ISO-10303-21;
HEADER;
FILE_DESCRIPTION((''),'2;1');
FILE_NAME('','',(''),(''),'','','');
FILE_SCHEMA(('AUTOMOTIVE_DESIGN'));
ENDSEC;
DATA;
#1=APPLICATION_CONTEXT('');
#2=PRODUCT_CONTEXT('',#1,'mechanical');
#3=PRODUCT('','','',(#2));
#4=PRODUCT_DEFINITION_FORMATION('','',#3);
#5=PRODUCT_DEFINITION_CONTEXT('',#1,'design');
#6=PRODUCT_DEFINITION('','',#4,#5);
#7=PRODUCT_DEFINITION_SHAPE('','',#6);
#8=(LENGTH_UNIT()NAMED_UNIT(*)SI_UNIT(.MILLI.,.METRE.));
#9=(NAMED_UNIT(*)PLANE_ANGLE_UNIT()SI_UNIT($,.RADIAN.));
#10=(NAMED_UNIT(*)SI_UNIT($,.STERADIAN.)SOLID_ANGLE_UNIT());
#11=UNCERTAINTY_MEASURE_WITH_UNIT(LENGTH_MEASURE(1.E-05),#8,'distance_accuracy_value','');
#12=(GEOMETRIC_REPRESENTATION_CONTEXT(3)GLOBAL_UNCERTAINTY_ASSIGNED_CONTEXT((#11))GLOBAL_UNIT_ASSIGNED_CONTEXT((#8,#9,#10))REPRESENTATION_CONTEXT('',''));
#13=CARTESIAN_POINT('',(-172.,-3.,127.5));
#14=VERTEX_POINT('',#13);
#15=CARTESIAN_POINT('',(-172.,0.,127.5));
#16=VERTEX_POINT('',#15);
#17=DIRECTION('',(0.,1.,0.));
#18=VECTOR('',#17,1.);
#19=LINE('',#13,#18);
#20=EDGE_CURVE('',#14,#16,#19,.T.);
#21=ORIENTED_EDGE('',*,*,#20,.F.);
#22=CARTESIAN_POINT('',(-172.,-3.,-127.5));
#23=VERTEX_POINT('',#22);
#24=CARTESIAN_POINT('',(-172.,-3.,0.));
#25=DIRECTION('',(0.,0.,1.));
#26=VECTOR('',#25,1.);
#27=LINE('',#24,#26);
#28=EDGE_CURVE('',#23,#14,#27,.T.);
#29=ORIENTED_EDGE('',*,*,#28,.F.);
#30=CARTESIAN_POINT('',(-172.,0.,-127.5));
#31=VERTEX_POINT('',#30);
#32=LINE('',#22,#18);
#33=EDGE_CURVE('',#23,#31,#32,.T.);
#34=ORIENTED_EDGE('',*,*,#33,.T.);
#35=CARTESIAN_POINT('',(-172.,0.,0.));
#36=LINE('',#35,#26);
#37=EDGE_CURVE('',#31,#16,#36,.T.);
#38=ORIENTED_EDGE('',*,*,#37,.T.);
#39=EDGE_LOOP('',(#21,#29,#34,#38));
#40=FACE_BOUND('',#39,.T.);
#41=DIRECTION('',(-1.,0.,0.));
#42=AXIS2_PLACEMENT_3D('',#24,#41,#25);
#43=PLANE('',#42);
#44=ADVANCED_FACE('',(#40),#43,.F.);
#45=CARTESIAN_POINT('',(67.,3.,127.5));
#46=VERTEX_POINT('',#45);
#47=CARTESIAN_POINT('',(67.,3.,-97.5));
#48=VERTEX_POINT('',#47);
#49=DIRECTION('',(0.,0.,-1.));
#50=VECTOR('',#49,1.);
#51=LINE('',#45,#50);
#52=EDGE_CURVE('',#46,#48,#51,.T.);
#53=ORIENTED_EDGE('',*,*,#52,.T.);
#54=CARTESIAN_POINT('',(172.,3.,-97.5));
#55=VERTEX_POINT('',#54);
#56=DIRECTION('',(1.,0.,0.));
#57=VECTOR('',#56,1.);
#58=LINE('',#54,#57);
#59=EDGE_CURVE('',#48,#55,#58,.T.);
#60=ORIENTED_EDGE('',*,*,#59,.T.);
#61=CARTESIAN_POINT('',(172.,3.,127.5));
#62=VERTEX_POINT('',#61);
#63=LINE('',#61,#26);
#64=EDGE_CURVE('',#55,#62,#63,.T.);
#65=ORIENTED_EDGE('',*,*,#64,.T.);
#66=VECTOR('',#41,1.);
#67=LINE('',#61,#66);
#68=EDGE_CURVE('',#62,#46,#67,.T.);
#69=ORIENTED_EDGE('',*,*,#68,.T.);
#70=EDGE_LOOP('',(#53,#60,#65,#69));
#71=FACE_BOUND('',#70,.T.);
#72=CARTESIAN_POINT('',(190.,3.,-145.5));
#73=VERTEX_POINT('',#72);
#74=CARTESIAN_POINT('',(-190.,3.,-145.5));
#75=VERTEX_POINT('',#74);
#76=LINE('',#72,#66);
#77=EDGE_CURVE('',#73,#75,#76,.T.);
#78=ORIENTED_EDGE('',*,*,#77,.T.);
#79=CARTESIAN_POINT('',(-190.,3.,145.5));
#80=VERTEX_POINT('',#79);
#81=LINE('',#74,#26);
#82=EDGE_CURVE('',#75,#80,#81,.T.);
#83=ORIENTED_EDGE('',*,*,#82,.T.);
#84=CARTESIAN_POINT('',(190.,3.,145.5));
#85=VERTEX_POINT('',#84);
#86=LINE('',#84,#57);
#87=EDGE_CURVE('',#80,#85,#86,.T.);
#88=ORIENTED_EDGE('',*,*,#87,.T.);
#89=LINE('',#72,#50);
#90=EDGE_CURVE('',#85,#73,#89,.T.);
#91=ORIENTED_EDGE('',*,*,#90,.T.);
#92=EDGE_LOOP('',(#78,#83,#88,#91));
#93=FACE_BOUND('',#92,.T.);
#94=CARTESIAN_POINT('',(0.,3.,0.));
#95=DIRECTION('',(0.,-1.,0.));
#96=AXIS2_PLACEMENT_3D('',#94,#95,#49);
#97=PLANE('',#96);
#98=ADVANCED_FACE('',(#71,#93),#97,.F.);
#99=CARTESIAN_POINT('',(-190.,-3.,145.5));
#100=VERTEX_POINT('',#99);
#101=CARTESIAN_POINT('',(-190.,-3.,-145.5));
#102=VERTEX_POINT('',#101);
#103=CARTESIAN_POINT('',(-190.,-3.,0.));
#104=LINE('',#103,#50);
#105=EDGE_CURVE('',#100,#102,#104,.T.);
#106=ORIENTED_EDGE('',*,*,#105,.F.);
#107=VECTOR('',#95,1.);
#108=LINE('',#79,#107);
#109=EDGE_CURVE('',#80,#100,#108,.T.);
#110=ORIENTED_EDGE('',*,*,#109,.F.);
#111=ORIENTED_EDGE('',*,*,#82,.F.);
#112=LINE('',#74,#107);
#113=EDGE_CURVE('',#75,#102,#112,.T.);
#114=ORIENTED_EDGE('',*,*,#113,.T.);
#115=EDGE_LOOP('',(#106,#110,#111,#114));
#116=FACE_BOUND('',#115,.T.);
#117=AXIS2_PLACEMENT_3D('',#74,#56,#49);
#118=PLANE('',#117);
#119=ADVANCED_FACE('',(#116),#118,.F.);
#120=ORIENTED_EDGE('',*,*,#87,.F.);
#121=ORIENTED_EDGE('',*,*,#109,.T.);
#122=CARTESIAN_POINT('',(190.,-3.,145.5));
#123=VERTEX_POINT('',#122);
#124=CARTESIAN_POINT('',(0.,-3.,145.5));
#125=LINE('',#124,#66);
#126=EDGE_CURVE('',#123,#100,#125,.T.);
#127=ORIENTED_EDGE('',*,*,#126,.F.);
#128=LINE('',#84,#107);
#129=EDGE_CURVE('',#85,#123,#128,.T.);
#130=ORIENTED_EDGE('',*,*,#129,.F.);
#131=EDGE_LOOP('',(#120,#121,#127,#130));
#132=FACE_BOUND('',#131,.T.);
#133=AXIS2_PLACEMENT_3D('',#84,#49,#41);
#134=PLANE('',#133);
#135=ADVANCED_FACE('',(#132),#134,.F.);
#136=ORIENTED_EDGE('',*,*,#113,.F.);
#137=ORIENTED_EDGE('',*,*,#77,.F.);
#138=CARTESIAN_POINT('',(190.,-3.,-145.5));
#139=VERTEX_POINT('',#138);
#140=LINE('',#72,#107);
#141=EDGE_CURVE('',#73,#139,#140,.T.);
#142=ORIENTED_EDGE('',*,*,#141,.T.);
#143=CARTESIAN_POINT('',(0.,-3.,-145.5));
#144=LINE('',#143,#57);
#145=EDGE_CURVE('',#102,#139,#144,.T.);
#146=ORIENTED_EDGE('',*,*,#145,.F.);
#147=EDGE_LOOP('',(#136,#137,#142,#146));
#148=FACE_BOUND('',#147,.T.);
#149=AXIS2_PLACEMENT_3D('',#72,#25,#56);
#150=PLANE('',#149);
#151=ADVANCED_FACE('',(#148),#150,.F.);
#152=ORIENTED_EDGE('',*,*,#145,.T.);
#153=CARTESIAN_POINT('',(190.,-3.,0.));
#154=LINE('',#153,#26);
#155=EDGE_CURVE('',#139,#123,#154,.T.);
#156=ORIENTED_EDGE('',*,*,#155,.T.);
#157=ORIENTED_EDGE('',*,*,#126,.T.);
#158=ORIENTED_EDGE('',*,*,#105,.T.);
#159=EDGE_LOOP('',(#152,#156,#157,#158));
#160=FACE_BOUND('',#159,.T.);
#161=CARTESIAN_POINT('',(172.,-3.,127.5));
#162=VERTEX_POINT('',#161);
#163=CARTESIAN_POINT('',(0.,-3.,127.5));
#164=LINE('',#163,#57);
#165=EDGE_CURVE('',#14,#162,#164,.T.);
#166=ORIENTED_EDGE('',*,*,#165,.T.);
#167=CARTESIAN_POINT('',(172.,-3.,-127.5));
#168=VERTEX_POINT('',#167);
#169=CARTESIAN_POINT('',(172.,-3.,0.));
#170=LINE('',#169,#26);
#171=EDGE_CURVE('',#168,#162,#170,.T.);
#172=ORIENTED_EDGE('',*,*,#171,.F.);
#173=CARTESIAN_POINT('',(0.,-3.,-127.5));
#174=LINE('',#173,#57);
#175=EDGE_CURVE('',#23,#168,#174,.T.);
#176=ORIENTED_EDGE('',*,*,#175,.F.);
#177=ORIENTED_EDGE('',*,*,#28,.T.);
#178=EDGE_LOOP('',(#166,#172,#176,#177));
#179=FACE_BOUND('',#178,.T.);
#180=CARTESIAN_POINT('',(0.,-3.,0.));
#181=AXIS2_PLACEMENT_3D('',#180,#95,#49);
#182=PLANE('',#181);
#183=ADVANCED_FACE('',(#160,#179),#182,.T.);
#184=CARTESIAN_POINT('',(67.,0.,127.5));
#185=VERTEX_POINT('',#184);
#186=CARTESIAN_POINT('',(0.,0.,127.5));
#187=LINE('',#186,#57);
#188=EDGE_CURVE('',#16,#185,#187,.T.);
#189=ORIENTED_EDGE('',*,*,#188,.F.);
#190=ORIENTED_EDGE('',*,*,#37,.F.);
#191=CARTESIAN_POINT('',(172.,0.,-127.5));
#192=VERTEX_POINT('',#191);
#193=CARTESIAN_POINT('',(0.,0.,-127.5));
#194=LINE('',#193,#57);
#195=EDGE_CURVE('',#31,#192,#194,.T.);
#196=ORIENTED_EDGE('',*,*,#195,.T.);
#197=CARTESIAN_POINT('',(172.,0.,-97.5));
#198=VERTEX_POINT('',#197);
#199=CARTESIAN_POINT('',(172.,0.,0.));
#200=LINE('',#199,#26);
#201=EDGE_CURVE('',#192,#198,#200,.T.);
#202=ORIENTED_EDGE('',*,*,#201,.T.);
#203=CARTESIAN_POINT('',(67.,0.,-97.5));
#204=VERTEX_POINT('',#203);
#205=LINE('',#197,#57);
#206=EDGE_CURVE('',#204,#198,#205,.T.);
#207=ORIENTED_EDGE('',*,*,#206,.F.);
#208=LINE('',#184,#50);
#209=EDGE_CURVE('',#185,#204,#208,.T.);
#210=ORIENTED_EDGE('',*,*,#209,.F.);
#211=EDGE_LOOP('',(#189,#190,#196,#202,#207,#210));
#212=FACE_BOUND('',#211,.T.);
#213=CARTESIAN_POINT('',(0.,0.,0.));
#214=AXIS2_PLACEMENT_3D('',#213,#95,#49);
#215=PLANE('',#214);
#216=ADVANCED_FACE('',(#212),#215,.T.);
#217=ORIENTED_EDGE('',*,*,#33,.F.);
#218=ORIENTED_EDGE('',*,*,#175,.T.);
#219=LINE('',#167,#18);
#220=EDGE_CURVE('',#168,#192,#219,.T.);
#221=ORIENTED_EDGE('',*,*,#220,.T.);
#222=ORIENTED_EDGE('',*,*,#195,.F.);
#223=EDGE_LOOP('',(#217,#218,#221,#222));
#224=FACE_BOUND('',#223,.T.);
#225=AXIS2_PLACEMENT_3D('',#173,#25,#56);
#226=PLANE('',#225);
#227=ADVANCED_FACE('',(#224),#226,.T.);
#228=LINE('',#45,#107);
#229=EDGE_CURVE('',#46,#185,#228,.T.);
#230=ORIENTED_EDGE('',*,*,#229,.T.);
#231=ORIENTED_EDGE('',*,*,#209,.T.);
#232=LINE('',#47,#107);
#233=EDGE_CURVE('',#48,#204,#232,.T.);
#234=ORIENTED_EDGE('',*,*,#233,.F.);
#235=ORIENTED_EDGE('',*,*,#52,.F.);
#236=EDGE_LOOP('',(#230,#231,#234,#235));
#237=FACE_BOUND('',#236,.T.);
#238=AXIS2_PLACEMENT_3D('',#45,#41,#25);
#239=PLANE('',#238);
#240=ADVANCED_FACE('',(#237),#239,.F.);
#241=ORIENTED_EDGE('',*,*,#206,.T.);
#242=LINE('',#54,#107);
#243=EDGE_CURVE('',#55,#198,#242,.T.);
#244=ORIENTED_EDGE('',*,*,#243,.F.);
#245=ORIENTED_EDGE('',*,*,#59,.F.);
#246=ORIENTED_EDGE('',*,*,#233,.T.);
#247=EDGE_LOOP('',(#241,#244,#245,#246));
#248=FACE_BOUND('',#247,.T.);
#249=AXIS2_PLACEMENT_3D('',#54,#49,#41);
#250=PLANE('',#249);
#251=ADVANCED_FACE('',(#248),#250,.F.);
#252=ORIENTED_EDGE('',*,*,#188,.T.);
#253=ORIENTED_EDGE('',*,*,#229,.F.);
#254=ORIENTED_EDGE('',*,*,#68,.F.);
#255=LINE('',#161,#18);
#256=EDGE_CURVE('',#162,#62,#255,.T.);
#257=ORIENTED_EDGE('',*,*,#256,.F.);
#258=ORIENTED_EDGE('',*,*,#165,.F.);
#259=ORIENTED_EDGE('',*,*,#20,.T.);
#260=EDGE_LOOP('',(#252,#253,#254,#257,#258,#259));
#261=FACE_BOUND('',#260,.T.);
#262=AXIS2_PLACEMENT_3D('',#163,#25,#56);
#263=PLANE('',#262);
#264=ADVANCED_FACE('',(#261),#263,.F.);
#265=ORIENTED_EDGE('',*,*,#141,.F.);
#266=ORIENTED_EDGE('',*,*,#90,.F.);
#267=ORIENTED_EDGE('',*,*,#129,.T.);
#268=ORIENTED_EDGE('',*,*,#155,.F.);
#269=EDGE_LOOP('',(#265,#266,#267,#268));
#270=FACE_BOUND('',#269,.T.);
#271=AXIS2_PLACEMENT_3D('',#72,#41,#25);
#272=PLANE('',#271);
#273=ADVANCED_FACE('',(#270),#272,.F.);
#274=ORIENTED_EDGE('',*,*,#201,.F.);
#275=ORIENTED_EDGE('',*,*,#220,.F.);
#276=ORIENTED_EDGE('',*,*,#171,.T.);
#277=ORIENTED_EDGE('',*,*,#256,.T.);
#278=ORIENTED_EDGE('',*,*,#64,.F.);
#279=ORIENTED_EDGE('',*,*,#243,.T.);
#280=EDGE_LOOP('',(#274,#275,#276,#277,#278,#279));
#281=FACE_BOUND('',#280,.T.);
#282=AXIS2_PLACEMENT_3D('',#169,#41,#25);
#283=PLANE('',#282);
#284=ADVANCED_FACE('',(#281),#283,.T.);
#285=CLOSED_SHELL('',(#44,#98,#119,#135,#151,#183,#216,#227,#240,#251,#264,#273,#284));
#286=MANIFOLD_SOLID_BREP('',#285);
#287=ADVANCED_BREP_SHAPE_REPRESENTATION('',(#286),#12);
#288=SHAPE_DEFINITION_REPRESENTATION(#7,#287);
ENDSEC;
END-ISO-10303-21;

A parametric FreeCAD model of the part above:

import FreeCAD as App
import Part
import Sketcher
Q = App.Units.Quantity


def add_polygon(sketch, points):
    """Adds a closed chain of lines whose ends are joined by coincident constraints."""
    first, n = sketch.GeometryCount, len(points)
    for a, b in zip(points, points[1:] + points[:1]):
        sketch.addGeometry(Part.LineSegment(App.Vector(*a, 0), App.Vector(*b, 0)), False)
    for i in range(n):
        sketch.addConstraint(Sketcher.Constraint("Coincident", first + i, 2, first + (i + 1) % n, 1))

doc = App.newDocument("Part")
body = doc.addObject("PartDesign::Body", "Body")

sketch1 = body.newObject("Sketcher::SketchObject", "Sketch")
sketch1.AttachmentSupport = (doc.getObject("XZ_Plane"), [""])
sketch1.MapMode = "FlatFace"
add_polygon(sketch1, [(-190, -146), (-190, 146), (190, 146), (190, -146)])
sketch1.addConstraint([
    Sketcher.Constraint("Vertical", 0),
    Sketcher.Constraint("Horizontal", 1),
    Sketcher.Constraint("Vertical", 2),
    Sketcher.Constraint("Horizontal", 3),
    Sketcher.Constraint("Symmetric", 0, 2, 2, 2, -1, 1),
    Sketcher.Constraint("DistanceX", 1, 1, 1, 2, Q("380 mm")),
    Sketcher.Constraint("DistanceY", 0, 1, 0, 2, Q("291 mm")),
])
pad1 = body.newObject("PartDesign::Pad", "Pad")
pad1.Profile = sketch1
pad1.Length = 3
pad1.Reversed = True

sketch2 = body.newObject("Sketcher::SketchObject", "Sketch001")
sketch2.AttachmentSupport = (doc.getObject("XZ_Plane"), [""])
sketch2.MapMode = "FlatFace"
add_polygon(sketch2, [(-190, 146), (-190, -146), (190, -146), (190, 146)])
add_polygon(sketch2, [(172, -128), (-172, -128), (-172, 128), (172, 128)])
sketch2.addConstraint([
    Sketcher.Constraint("Vertical", 0),
    Sketcher.Constraint("Horizontal", 1),
    Sketcher.Constraint("Vertical", 2),
    Sketcher.Constraint("Horizontal", 3),
    Sketcher.Constraint("Horizontal", 4),
    Sketcher.Constraint("Vertical", 5),
    Sketcher.Constraint("Horizontal", 6),
    Sketcher.Constraint("Vertical", 7),
    Sketcher.Constraint("Symmetric", 0, 2, 2, 2, -1, 1),
    Sketcher.Constraint("Symmetric", 4, 2, 6, 2, -1, 1),
    Sketcher.Constraint("DistanceX", 1, 1, 1, 2, Q("380 mm")),
    Sketcher.Constraint("DistanceX", 4, 2, 4, 1, Q("344 mm")),
    Sketcher.Constraint("DistanceY", 0, 2, 0, 1, Q("291 mm")),
    Sketcher.Constraint("DistanceY", 5, 1, 5, 2, Q("255 mm")),
])
pad2 = body.newObject("PartDesign::Pad", "Pad001")
pad2.Profile = sketch2
pad2.Length = 3

sketch3 = body.newObject("Sketcher::SketchObject", "Sketch002")
sketch3.AttachmentSupport = (doc.getObject("XZ_Plane"), [""])
sketch3.MapMode = "FlatFace"
add_polygon(sketch3, [(67, 128), (67, -98), (172, -98), (172, 128)])
sketch3.addConstraint([
    Sketcher.Constraint("Vertical", 0),
    Sketcher.Constraint("Horizontal", 1),
    Sketcher.Constraint("Vertical", 2),
    Sketcher.Constraint("Horizontal", 3),
    Sketcher.Constraint("DistanceX", 1, 1, 1, 2, Q("105 mm")),
    Sketcher.Constraint("DistanceY", 0, 2, 0, 1, Q("225 mm")),
    Sketcher.Constraint("DistanceX", -1, 1, 0, 2, Q("67 mm")),
    Sketcher.Constraint("DistanceY", 0, 2, -1, 1, Q("97.5 mm")),
])
pocket1 = body.newObject("PartDesign::Pocket", "Pocket")
pocket1.Profile = sketch3
pocket1.Length = 3

doc.recompute()
